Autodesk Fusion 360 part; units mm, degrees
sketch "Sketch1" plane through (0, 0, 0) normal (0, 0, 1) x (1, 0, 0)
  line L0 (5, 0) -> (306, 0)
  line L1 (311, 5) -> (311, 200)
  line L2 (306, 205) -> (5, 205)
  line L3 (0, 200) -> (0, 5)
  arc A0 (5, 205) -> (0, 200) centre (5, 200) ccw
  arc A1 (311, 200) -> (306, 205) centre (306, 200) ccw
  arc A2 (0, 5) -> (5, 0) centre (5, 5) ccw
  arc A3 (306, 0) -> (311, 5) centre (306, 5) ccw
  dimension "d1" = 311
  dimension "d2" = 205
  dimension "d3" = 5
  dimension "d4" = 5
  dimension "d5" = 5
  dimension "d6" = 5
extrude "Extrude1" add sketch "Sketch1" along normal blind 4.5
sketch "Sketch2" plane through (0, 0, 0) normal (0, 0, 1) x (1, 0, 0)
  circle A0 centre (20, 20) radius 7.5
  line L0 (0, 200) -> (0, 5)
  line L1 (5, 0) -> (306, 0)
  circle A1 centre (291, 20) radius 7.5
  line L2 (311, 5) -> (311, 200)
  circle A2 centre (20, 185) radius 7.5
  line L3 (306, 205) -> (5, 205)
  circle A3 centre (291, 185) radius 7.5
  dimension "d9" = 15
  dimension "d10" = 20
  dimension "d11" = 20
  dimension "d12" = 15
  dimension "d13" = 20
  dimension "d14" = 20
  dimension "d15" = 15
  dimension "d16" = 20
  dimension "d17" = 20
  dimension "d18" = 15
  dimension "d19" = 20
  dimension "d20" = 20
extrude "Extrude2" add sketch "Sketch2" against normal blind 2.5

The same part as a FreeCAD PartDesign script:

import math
import FreeCAD as App
import Part
import Sketcher

V = App.Vector

doc = App.newDocument("Part")
body = doc.addObject("PartDesign::Body", "Body")

# Sketch on XY plane
sketch1 = doc.addObject("Sketcher::SketchObject", "Sketch")
body.addObject(sketch1)
sketch1.AttachmentSupport = (doc.XY_Plane, [""])
sketch1.MapMode = "FlatFace"
sketch1.addGeometry([
    Part.ArcOfCircle(Part.Circle(V(5, 5, 0), V(0, 0, 1), 5), math.radians(180), math.radians(270)),  # 0
    Part.LineSegment(V(5, 0, 0), V(306, 0, 0)),  # 1
    Part.ArcOfCircle(Part.Circle(V(306, 5, 0), V(0, 0, 1), 5), math.radians(-90), math.radians(0)),  # 2
    Part.LineSegment(V(311, 5, 0), V(311, 200, 0)),  # 3
    Part.ArcOfCircle(Part.Circle(V(306, 200, 0), V(0, 0, 1), 5), math.radians(0), math.radians(90)),  # 4
    Part.LineSegment(V(306, 205, 0), V(5, 205, 0)),  # 5
    Part.ArcOfCircle(Part.Circle(V(5, 200, 0), V(0, 0, 1), 5), math.radians(90), math.radians(180)),  # 6
    Part.LineSegment(V(0, 200, 0), V(0, 5, 0)),  # 7
], False)
sketch1.addConstraint([
    Sketcher.Constraint("Tangent", 0, 2, 1, 1),
    Sketcher.Constraint("Tangent", 1, 2, 2, 1),
    Sketcher.Constraint("Tangent", 2, 2, 3, 1),
    Sketcher.Constraint("Tangent", 3, 2, 4, 1),
    Sketcher.Constraint("Tangent", 4, 2, 5, 1),
    Sketcher.Constraint("Tangent", 5, 2, 6, 1),
    Sketcher.Constraint("Tangent", 6, 2, 7, 1),
    Sketcher.Constraint("Tangent", 7, 2, 0, 1),
    Sketcher.Constraint("Horizontal", 1),
    Sketcher.Constraint("Vertical", 3),
    Sketcher.Constraint("Horizontal", 5),
    Sketcher.Constraint("Vertical", 7),
    Sketcher.Constraint("Equal", 0, 2),
    Sketcher.Constraint("Equal", 2, 4),
    Sketcher.Constraint("Equal", 4, 6),
    Sketcher.Constraint("PointOnObject", 0, 2, -1),
    Sketcher.Constraint("PointOnObject", 6, 2, -2),
    Sketcher.Constraint("Radius", 0, 5.0),
    Sketcher.Constraint("DistanceX", -1, 1, 2, 2, 311.0),
    Sketcher.Constraint("DistanceY", -1, 1, 4, 2, 205.0),
])
pad1 = doc.addObject("PartDesign::Pad", "Pad")
body.addObject(pad1)
pad1.Profile = sketch1
pad1.Length = 4.5

# Sketch on XY plane
sketch2 = doc.addObject("Sketcher::SketchObject", "Sketch001")
body.addObject(sketch2)
sketch2.AttachmentSupport = (doc.XY_Plane, [""])
sketch2.MapMode = "FlatFace"
sketch2.addGeometry([
    Part.Circle(V(20, 20, 0), V(0, 0, 1), 8),
    Part.Circle(V(291, 20, 0), V(0, 0, 1), 8),
    Part.Circle(V(20, 185, 0), V(0, 0, 1), 8),
    Part.Circle(V(291, 185, 0), V(0, 0, 1), 8),
], False)
sketch2.addConstraint([
    Sketcher.Constraint("Equal", 0, 1),
    Sketcher.Constraint("Equal", 1, 2),
    Sketcher.Constraint("Equal", 2, 3),
    Sketcher.Constraint("Horizontal", 0, 3, 1, 3),
    Sketcher.Constraint("Horizontal", 2, 3, 3, 3),
    Sketcher.Constraint("Vertical", 0, 3, 2, 3),
    Sketcher.Constraint("Vertical", 1, 3, 3, 3),
    Sketcher.Constraint("Diameter", 0, 15.0),
    Sketcher.Constraint("DistanceX", -1, 1, 0, 3, 20.0),
    Sketcher.Constraint("DistanceY", -1, 1, 0, 3, 20.0),
    Sketcher.Constraint("DistanceX", -1, 1, 1, 3, 291.0),
    Sketcher.Constraint("DistanceY", -1, 1, 2, 3, 185.0),
])
pad2 = doc.addObject("PartDesign::Pad", "Pad001")
body.addObject(pad2)
pad2.Profile = sketch2
pad2.Length = 2.5
pad2.Reversed = True

doc.recompute()
